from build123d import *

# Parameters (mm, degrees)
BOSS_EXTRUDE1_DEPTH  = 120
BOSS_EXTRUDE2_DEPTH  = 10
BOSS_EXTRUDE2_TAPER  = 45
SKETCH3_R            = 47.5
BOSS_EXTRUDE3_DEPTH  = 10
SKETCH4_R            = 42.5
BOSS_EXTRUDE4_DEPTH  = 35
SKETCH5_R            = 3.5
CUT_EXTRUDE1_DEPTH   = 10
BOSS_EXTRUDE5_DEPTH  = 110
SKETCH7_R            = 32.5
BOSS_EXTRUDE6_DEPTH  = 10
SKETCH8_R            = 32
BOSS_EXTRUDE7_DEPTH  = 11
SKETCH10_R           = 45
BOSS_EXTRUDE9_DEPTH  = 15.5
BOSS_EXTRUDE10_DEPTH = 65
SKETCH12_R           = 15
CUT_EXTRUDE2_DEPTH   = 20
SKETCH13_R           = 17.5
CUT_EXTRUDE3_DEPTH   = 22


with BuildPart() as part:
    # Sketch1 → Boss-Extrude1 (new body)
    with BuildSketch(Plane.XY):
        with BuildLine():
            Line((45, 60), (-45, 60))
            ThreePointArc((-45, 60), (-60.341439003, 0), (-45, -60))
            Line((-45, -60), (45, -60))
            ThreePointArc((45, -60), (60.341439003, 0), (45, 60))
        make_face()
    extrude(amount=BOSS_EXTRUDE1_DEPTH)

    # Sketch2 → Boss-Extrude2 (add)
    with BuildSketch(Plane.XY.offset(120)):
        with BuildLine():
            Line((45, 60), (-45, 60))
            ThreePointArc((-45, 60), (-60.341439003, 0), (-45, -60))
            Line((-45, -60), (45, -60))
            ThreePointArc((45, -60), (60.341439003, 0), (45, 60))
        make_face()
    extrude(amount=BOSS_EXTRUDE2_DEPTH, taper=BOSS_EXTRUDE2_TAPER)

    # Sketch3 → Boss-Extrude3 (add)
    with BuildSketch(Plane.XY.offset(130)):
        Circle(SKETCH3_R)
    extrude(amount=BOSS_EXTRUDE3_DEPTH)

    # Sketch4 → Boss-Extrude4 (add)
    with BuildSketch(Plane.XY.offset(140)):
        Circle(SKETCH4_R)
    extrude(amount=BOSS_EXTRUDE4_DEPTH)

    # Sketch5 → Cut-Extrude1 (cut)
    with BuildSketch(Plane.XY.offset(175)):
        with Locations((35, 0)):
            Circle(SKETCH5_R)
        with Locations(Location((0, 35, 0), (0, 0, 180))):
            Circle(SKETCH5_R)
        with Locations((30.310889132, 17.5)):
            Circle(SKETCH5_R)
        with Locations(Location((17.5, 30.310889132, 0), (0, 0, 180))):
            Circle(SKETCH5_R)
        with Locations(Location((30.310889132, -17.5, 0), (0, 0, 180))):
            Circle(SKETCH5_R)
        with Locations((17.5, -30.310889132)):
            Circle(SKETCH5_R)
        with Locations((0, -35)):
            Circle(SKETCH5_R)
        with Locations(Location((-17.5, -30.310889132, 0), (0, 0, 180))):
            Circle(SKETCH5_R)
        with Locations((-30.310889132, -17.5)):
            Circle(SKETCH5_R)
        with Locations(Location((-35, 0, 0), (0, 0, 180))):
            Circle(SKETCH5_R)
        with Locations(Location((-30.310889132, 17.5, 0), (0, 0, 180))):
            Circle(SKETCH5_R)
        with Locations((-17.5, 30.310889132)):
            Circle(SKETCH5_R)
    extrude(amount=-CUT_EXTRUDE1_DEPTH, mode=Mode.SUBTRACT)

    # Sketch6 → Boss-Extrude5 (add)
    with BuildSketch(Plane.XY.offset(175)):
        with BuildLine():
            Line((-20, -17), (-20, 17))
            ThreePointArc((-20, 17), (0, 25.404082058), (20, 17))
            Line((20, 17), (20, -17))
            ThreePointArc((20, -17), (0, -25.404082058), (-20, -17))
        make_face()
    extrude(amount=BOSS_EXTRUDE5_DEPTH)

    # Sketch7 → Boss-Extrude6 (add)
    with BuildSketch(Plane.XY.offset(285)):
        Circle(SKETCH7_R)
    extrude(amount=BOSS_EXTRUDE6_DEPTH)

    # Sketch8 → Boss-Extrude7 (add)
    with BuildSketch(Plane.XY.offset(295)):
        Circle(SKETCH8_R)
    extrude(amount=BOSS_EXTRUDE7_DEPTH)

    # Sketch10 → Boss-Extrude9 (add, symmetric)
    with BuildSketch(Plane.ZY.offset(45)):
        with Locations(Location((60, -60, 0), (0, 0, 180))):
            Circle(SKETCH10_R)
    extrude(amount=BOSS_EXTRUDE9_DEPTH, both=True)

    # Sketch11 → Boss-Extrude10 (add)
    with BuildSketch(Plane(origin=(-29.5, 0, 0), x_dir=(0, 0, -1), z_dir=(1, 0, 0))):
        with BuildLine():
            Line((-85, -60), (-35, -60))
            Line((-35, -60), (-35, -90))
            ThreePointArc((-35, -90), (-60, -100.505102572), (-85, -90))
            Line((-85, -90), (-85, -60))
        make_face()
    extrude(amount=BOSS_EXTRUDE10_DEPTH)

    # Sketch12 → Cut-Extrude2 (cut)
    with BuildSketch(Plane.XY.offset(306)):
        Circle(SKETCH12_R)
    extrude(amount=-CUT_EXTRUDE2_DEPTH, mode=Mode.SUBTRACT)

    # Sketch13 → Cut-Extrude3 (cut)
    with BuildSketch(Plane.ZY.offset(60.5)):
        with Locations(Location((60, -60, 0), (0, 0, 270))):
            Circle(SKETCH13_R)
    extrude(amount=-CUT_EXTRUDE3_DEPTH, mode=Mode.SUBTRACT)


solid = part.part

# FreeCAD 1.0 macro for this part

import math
import FreeCAD as App
import Part
import Sketcher

doc = App.newDocument("Part")
params = doc.addObject("Spreadsheet::Sheet", "Params")
for row, (alias, value) in enumerate([
    ("sketch1_radius", "125 mm"),
    ("sketch1_width", "90 mm"),
    ("pad1_length", "120 mm"),
    ("sketch2_radius", "125 mm"),
    ("sketch2_width", "90 mm"),
    ("pad2_length", "10 mm"),
    ("pad2_taper", "-45 deg"),
    ("sketch3_diameter", "95 mm"),
    ("pad3_length", "10 mm"),
    ("sketch4_diameter", "85 mm"),
    ("pad4_length", "35 mm"),
    ("sketch5_diameter", "7 mm"),
    ("pocket1_length", "10 mm"),
    ("sketch6_radius", "28 mm"),
    ("sketch6_height", "34 mm"),
    ("pad5_length", "110 mm"),
    ("sketch7_diameter", "65 mm"),
    ("pad6_length", "10 mm"),
    ("sketch8_diameter", "64 mm"),
    ("pad7_length", "11 mm"),
    ("sketch9_diameter", "90 mm"),
    ("pad8_length", "31 mm"),
    ("sketch10_radius", "35 mm"),
    ("sketch10_width", "30 mm"),
    ("sketch10_height", "50 mm"),
    ("pad9_length", "65 mm"),
    ("sketch11_diameter", "30 mm"),
    ("pocket2_length", "20 mm"),
    ("sketch12_diameter", "35 mm"),
    ("pocket3_length", "22 mm"),
], start=1):
    params.set(f"A{row}", alias)
    params.set(f"B{row}", "=" + value)
    params.setAlias(f"B{row}", alias)

body = doc.addObject("PartDesign::Body", "Body")

sketch1 = body.newObject("Sketcher::SketchObject", "Sketch")
sketch1.AttachmentSupport = (doc.getObject("XY_Plane"), [""])
sketch1.MapMode = "FlatFace"
sketch1.addGeometry(Part.LineSegment(App.Vector(45, 60, 0), App.Vector(-45, 60, 0)), False)
sketch1.addGeometry(Part.ArcOfCircle(Part.Circle(App.Vector(65, 0, 0), App.Vector(0, 0, 1), 125), math.radians(151), math.radians(209)), False)
sketch1.addGeometry(Part.LineSegment(App.Vector(-45, -60, 0), App.Vector(45, -60, 0)), False)
sketch1.addGeometry(Part.ArcOfCircle(Part.Circle(App.Vector(-65, 0, 0), App.Vector(0, 0, 1), 125), math.radians(-29), math.radians(29)), False)
sketch1.addConstraint(Sketcher.Constraint("Coincident", 0, 2, 1, 1))
sketch1.addConstraint(Sketcher.Constraint("Coincident", 1, 2, 2, 1))
sketch1.addConstraint(Sketcher.Constraint("Coincident", 2, 2, 3, 1))
sketch1.addConstraint(Sketcher.Constraint("Coincident", 3, 2, 0, 1))
sketch1.addConstraint(Sketcher.Constraint("Horizontal", 0))
sketch1.addConstraint(Sketcher.Constraint("Horizontal", 2))
sketch1.addConstraint(Sketcher.Constraint("Equal", 1, 3))
sketch1.addConstraint(Sketcher.Constraint("Symmetric", 1, 3, 3, 3, -1, 1))
sketch1.addConstraint(Sketcher.Constraint("Symmetric", 0, 2, 1, 2, -1))
sketch1.addConstraint(Sketcher.Constraint("Radius", 1, 125.0))
sketch1.addConstraint(Sketcher.Constraint("DistanceX", 0, 2, 0, 1, 90.0))
sketch1.addConstraint(Sketcher.Constraint("DistanceY", -1, 1, 0, 2, 60.0))
sketch1.setExpression("Constraints[9]", "Params.sketch1_radius")
sketch1.setExpression("Constraints[10]", "Params.sketch1_width")
pad1 = body.newObject("PartDesign::Pad", "Pad")
pad1.Profile = sketch1
pad1.setExpression("Length", "Params.pad1_length")

sketch2 = body.newObject("Sketcher::SketchObject", "Sketch001")
sketch2.AttachmentSupport = (doc.getObject("XY_Plane"), [""])
sketch2.MapMode = "FlatFace"
sketch2.AttachmentOffset = App.Placement(App.Vector(0, 0, 120), App.Rotation())
sketch2.addGeometry(Part.LineSegment(App.Vector(45, 60, 0), App.Vector(-45, 60, 0)), False)
sketch2.addGeometry(Part.ArcOfCircle(Part.Circle(App.Vector(65, 0, 0), App.Vector(0, 0, 1), 125), math.radians(151), math.radians(209)), False)
sketch2.addGeometry(Part.LineSegment(App.Vector(-45, -60, 0), App.Vector(45, -60, 0)), False)
sketch2.addGeometry(Part.ArcOfCircle(Part.Circle(App.Vector(-65, 0, 0), App.Vector(0, 0, 1), 125), math.radians(-29), math.radians(29)), False)
sketch2.addConstraint(Sketcher.Constraint("Coincident", 0, 2, 1, 1))
sketch2.addConstraint(Sketcher.Constraint("Coincident", 1, 2, 2, 1))
sketch2.addConstraint(Sketcher.Constraint("Coincident", 2, 2, 3, 1))
sketch2.addConstraint(Sketcher.Constraint("Coincident", 3, 2, 0, 1))
sketch2.addConstraint(Sketcher.Constraint("Horizontal", 0))
sketch2.addConstraint(Sketcher.Constraint("Horizontal", 2))
sketch2.addConstraint(Sketcher.Constraint("Equal", 1, 3))
sketch2.addConstraint(Sketcher.Constraint("Symmetric", 1, 3, 3, 3, -1, 1))
sketch2.addConstraint(Sketcher.Constraint("Symmetric", 0, 2, 1, 2, -1))
sketch2.addConstraint(Sketcher.Constraint("Radius", 1, 125.0))
sketch2.addConstraint(Sketcher.Constraint("DistanceX", 0, 2, 0, 1, 90.0))
sketch2.addConstraint(Sketcher.Constraint("DistanceY", -1, 1, 0, 2, 60.0))
sketch2.setExpression("Constraints[9]", "Params.sketch2_radius")
sketch2.setExpression("Constraints[10]", "Params.sketch2_width")
pad2 = body.newObject("PartDesign::Pad", "Pad001")
pad2.Profile = sketch2
pad2.setExpression("Length", "Params.pad2_length")
pad2.setExpression("TaperAngle", "Params.pad2_taper")

sketch3 = body.newObject("Sketcher::SketchObject", "Sketch002")
sketch3.AttachmentSupport = (doc.getObject("XY_Plane"), [""])
sketch3.MapMode = "FlatFace"
sketch3.AttachmentOffset = App.Placement(App.Vector(0, 0, 130), App.Rotation())
sketch3.addGeometry(Part.Circle(App.Vector(0, 0, 0), App.Vector(0, 0, 1), 48), False)
sketch3.addConstraint(Sketcher.Constraint("Coincident", 0, 3, -1, 1))
sketch3.addConstraint(Sketcher.Constraint("Diameter", 0, 95.0))
sketch3.setExpression("Constraints[1]", "Params.sketch3_diameter")
pad3 = body.newObject("PartDesign::Pad", "Pad002")
pad3.Profile = sketch3
pad3.setExpression("Length", "Params.pad3_length")

sketch4 = body.newObject("Sketcher::SketchObject", "Sketch003")
sketch4.AttachmentSupport = (doc.getObject("XY_Plane"), [""])
sketch4.MapMode = "FlatFace"
sketch4.AttachmentOffset = App.Placement(App.Vector(0, 0, 140), App.Rotation())
sketch4.addGeometry(Part.Circle(App.Vector(0, 0, 0), App.Vector(0, 0, 1), 42), False)
sketch4.addConstraint(Sketcher.Constraint("Coincident", 0, 3, -1, 1))
sketch4.addConstraint(Sketcher.Constraint("Diameter", 0, 85.0))
sketch4.setExpression("Constraints[1]", "Params.sketch4_diameter")
pad4 = body.newObject("PartDesign::Pad", "Pad003")
pad4.Profile = sketch4
pad4.setExpression("Length", "Params.pad4_length")

sketch5 = body.newObject("Sketcher::SketchObject", "Sketch004")
sketch5.AttachmentSupport = (doc.getObject("XY_Plane"), [""])
sketch5.MapMode = "FlatFace"
sketch5.AttachmentOffset = App.Placement(App.Vector(0, 0, 175), App.Rotation())
sketch5.addGeometry(Part.Circle(App.Vector(35, 0, 0), App.Vector(0, 0, 1), 3.5), False)
sketch5.addGeometry(Part.Circle(App.Vector(0, 35, 0), App.Vector(0, 0, 1), 3.5), False)
sketch5.addGeometry(Part.Circle(App.Vector(30.3, 17.5, 0), App.Vector(0, 0, 1), 3.5), False)
sketch5.addGeometry(Part.Circle(App.Vector(17.5, 30.3, 0), App.Vector(0, 0, 1), 3.5), False)
sketch5.addGeometry(Part.Circle(App.Vector(30.3, -17.5, 0), App.Vector(0, 0, 1), 3.5), False)
sketch5.addGeometry(Part.Circle(App.Vector(17.5, -30.3, 0), App.Vector(0, 0, 1), 3.5), False)
sketch5.addGeometry(Part.Circle(App.Vector(0, -35, 0), App.Vector(0, 0, 1), 3.5), False)
sketch5.addGeometry(Part.Circle(App.Vector(-17.5, -30.3, 0), App.Vector(0, 0, 1), 3.5), False)
sketch5.addGeometry(Part.Circle(App.Vector(-30.3, -17.5, 0), App.Vector(0, 0, 1), 3.5), False)
sketch5.addGeometry(Part.Circle(App.Vector(-35, 0, 0), App.Vector(0, 0, 1), 3.5), False)
sketch5.addGeometry(Part.Circle(App.Vector(-30.3, 17.5, 0), App.Vector(0, 0, 1), 3.5), False)
sketch5.addGeometry(Part.Circle(App.Vector(-17.5, 30.3, 0), App.Vector(0, 0, 1), 3.5), False)
sketch5.addConstraint(Sketcher.Constraint("Equal", 0, 1))
sketch5.addConstraint(Sketcher.Constraint("Equal", 1, 2))
sketch5.addConstraint(Sketcher.Constraint("Equal", 2, 3))
sketch5.addConstraint(Sketcher.Constraint("Equal", 3, 4))
sketch5.addConstraint(Sketcher.Constraint("Equal", 4, 5))
sketch5.addConstraint(Sketcher.Constraint("Equal", 5, 6))
sketch5.addConstraint(Sketcher.Constraint("Equal", 6, 7))
sketch5.addConstraint(Sketcher.Constraint("Equal", 7, 8))
sketch5.addConstraint(Sketcher.Constraint("Equal", 8, 9))
sketch5.addConstraint(Sketcher.Constraint("Equal", 9, 10))
sketch5.addConstraint(Sketcher.Constraint("Equal", 10, 11))
sketch5.addConstraint(Sketcher.Constraint("Symmetric", 1, 3, 6, 3, -1, 1))
sketch5.addConstraint(Sketcher.Constraint("Symmetric", 3, 3, 7, 3, -1, 1))
sketch5.addConstraint(Sketcher.Constraint("Symmetric", 2, 3, 8, 3, -1, 1))
sketch5.addConstraint(Sketcher.Constraint("Symmetric", 0, 3, 9, 3, -1, 1))
sketch5.addConstraint(Sketcher.Constraint("Symmetric", 4, 3, 10, 3, -1, 1))
sketch5.addConstraint(Sketcher.Constraint("Symmetric", 5, 3, 11, 3, -1, 1))
sketch5.addConstraint(Sketcher.Constraint("Symmetric", 5, 3, 7, 3, -2))
sketch5.addConstraint(Sketcher.Constraint("Symmetric", 4, 3, 8, 3, -2))
sketch5.addConstraint(Sketcher.Constraint("PointOnObject", 0, 3, -1))
sketch5.addConstraint(Sketcher.Constraint("PointOnObject", 1, 3, -2))
sketch5.addConstraint(Sketcher.Constraint("Diameter", 0, 7.0))
sketch5.addConstraint(Sketcher.Constraint("DistanceX", -1, 1, 0, 3, 35.0))
sketch5.addConstraint(Sketcher.Constraint("DistanceY", -1, 1, 1, 3, 35.0))
sketch5.addConstraint(Sketcher.Constraint("DistanceY", 4, 3, 2, 3, 35.0))
sketch5.addConstraint(Sketcher.Constraint("DistanceX", 7, 3, 5, 3, 35.0))
sketch5.addConstraint(Sketcher.Constraint("DistanceX", -1, 1, 2, 3, 30.310889))
sketch5.addConstraint(Sketcher.Constraint("DistanceY", -1, 1, 3, 3, 30.310889))
sketch5.setExpression("Constraints[21]", "Params.sketch5_diameter")
pocket1 = body.newObject("PartDesign::Pocket", "Pocket")
pocket1.Profile = sketch5
pocket1.setExpression("Length", "Params.pocket1_length")

sketch6 = body.newObject("Sketcher::SketchObject", "Sketch005")
sketch6.AttachmentSupport = (doc.getObject("XY_Plane"), [""])
sketch6.MapMode = "FlatFace"
sketch6.AttachmentOffset = App.Placement(App.Vector(0, 0, 175), App.Rotation())
sketch6.addGeometry(Part.LineSegment(App.Vector(-20, 17, 0), App.Vector(-20, -17, 0)), False)
sketch6.addGeometry(Part.ArcOfCircle(Part.Circle(App.Vector(0, 3, 0), App.Vector(0, 0, 1), 28), math.radians(-136), math.radians(-44)), False)
sketch6.addGeometry(Part.LineSegment(App.Vector(20, -17, 0), App.Vector(20, 17, 0)), False)
sketch6.addGeometry(Part.ArcOfCircle(Part.Circle(App.Vector(0, -3, 0), App.Vector(0, 0, 1), 28), math.radians(44), math.radians(136)), False)
sketch6.addConstraint(Sketcher.Constraint("Coincident", 0, 2, 1, 1))
sketch6.addConstraint(Sketcher.Constraint("Coincident", 1, 2, 2, 1))
sketch6.addConstraint(Sketcher.Constraint("Coincident", 2, 2, 3, 1))
sketch6.addConstraint(Sketcher.Constraint("Coincident", 3, 2, 0, 1))
sketch6.addConstraint(Sketcher.Constraint("Vertical", 0))
sketch6.addConstraint(Sketcher.Constraint("Vertical", 2))
sketch6.addConstraint(Sketcher.Constraint("Equal", 1, 3))
sketch6.addConstraint(Sketcher.Constraint("Symmetric", 1, 3, 3, 3, -1, 1))
sketch6.addConstraint(Sketcher.Constraint("Symmetric", 0, 2, 1, 2, -2))
sketch6.addConstraint(Sketcher.Constraint("Radius", 1, 28.0))
sketch6.addConstraint(Sketcher.Constraint("DistanceY", 0, 2, 0, 1, 34.0))
sketch6.addConstraint(Sketcher.Constraint("DistanceX", 0, 2, -1, 1, 20.0))
sketch6.setExpression("Constraints[9]", "Params.sketch6_radius")
sketch6.setExpression("Constraints[10]", "Params.sketch6_height")
pad5 = body.newObject("PartDesign::Pad", "Pad004")
pad5.Profile = sketch6
pad5.setExpression("Length", "Params.pad5_length")

sketch7 = body.newObject("Sketcher::SketchObject", "Sketch006")
sketch7.AttachmentSupport = (doc.getObject("XY_Plane"), [""])
sketch7.MapMode = "FlatFace"
sketch7.AttachmentOffset = App.Placement(App.Vector(0, 0, 285), App.Rotation())
sketch7.addGeometry(Part.Circle(App.Vector(0, 0, 0), App.Vector(0, 0, 1), 32), False)
sketch7.addConstraint(Sketcher.Constraint("Coincident", 0, 3, -1, 1))
sketch7.addConstraint(Sketcher.Constraint("Diameter", 0, 65.0))
sketch7.setExpression("Constraints[1]", "Params.sketch7_diameter")
pad6 = body.newObject("PartDesign::Pad", "Pad005")
pad6.Profile = sketch7
pad6.setExpression("Length", "Params.pad6_length")

sketch8 = body.newObject("Sketcher::SketchObject", "Sketch007")
sketch8.AttachmentSupport = (doc.getObject("XY_Plane"), [""])
sketch8.MapMode = "FlatFace"
sketch8.AttachmentOffset = App.Placement(App.Vector(0, 0, 295), App.Rotation())
sketch8.addGeometry(Part.Circle(App.Vector(0, 0, 0), App.Vector(0, 0, 1), 32), False)
sketch8.addConstraint(Sketcher.Constraint("Coincident", 0, 3, -1, 1))
sketch8.addConstraint(Sketcher.Constraint("Diameter", 0, 64.0))
sketch8.setExpression("Constraints[1]", "Params.sketch8_diameter")
pad7 = body.newObject("PartDesign::Pad", "Pad006")
pad7.Profile = sketch8
pad7.setExpression("Length", "Params.pad7_length")

sketch9 = body.newObject("Sketcher::SketchObject", "Sketch008")
sketch9.AttachmentSupport = (doc.getObject("YZ_Plane"), [""])
sketch9.MapMode = "FlatFace"
sketch9.AttachmentOffset = App.Placement(App.Vector(0, 0, -45), App.Rotation())
sketch9.addGeometry(Part.Circle(App.Vector(-60, 60, 0), App.Vector(0, 0, 1), 45), False)
sketch9.addConstraint(Sketcher.Constraint("Diameter", 0, 90.0))
sketch9.addConstraint(Sketcher.Constraint("DistanceX", 0, 3, -1, 1, 60.0))
sketch9.addConstraint(Sketcher.Constraint("DistanceY", -1, 1, 0, 3, 60.0))
sketch9.setExpression("Constraints[0]", "Params.sketch9_diameter")
pad8 = body.newObject("PartDesign::Pad", "Pad007")
pad8.Profile = sketch9
pad8.setExpression("Length", "Params.pad8_length")
pad8.Midplane = True

sketch10 = body.newObject("Sketcher::SketchObject", "Sketch009")
sketch10.AttachmentSupport = (doc.getObject("YZ_Plane"), [""])
sketch10.MapMode = "FlatFace"
sketch10.AttachmentOffset = App.Placement(App.Vector(0, 0, -29.5), App.Rotation())
sketch10.addGeometry(Part.LineSegment(App.Vector(-60, 35, 0), App.Vector(-60, 85, 0)), False)
sketch10.addGeometry(Part.LineSegment(App.Vector(-60, 85, 0), App.Vector(-90, 85, 0)), False)
sketch10.addGeometry(Part.ArcOfCircle(Part.Circle(App.Vector(-66, 60, 0), App.Vector(0, 0, 1), 35), math.radians(134), math.radians(226)), False)
sketch10.addGeometry(Part.LineSegment(App.Vector(-90, 35, 0), App.Vector(-60, 35, 0)), False)
sketch10.addConstraint(Sketcher.Constraint("Coincident", 0, 2, 1, 1))
sketch10.addConstraint(Sketcher.Constraint("Coincident", 1, 2, 2, 1))
sketch10.addConstraint(Sketcher.Constraint("Coincident", 2, 2, 3, 1))
sketch10.addConstraint(Sketcher.Constraint("Coincident", 3, 2, 0, 1))
sketch10.addConstraint(Sketcher.Constraint("Vertical", 0))
sketch10.addConstraint(Sketcher.Constraint("Horizontal", 1))
sketch10.addConstraint(Sketcher.Constraint("Horizontal", 3))
sketch10.addConstraint(Sketcher.Constraint("Vertical", 1, 2, 2, 2))
sketch10.addConstraint(Sketcher.Constraint("Radius", 2, 35.0))
sketch10.addConstraint(Sketcher.Constraint("DistanceX", 1, 2, 1, 1, 30.0))
sketch10.addConstraint(Sketcher.Constraint("DistanceY", 0, 1, 0, 2, 50.0))
sketch10.addConstraint(Sketcher.Constraint("DistanceY", -1, 1, 2, 3, 60.0))
sketch10.addConstraint(Sketcher.Constraint("DistanceX", 0, 2, -1, 1, 60.0))
sketch10.setExpression("Constraints[8]", "Params.sketch10_radius")
sketch10.setExpression("Constraints[9]", "Params.sketch10_width")
sketch10.setExpression("Constraints[10]", "Params.sketch10_height")
pad9 = body.newObject("PartDesign::Pad", "Pad008")
pad9.Profile = sketch10
pad9.setExpression("Length", "Params.pad9_length")

sketch11 = body.newObject("Sketcher::SketchObject", "Sketch010")
sketch11.AttachmentSupport = (doc.getObject("XY_Plane"), [""])
sketch11.MapMode = "FlatFace"
sketch11.AttachmentOffset = App.Placement(App.Vector(0, 0, 306), App.Rotation())
sketch11.addGeometry(Part.Circle(App.Vector(0, 0, 0), App.Vector(0, 0, 1), 15), False)
sketch11.addConstraint(Sketcher.Constraint("Coincident", 0, 3, -1, 1))
sketch11.addConstraint(Sketcher.Constraint("Diameter", 0, 30.0))
sketch11.setExpression("Constraints[1]", "Params.sketch11_diameter")
pocket2 = body.newObject("PartDesign::Pocket", "Pocket001")
pocket2.Profile = sketch11
pocket2.setExpression("Length", "Params.pocket2_length")

sketch12 = body.newObject("Sketcher::SketchObject", "Sketch011")
sketch12.AttachmentSupport = (doc.getObject("YZ_Plane"), [""])
sketch12.MapMode = "FlatFace"
sketch12.AttachmentOffset = App.Placement(App.Vector(0, 0, -60.5), App.Rotation())
sketch12.addGeometry(Part.Circle(App.Vector(-60, 60, 0), App.Vector(0, 0, 1), 18), False)
sketch12.addConstraint(Sketcher.Constraint("Diameter", 0, 35.0))
sketch12.addConstraint(Sketcher.Constraint("DistanceX", 0, 3, -1, 1, 60.0))
sketch12.addConstraint(Sketcher.Constraint("DistanceY", -1, 1, 0, 3, 60.0))
sketch12.setExpression("Constraints[0]", "Params.sketch12_diameter")
pocket3 = body.newObject("PartDesign::Pocket", "Pocket002")
pocket3.Profile = sketch12
pocket3.setExpression("Length", "Params.pocket3_length")
pocket3.Reversed = True

doc.recompute()
